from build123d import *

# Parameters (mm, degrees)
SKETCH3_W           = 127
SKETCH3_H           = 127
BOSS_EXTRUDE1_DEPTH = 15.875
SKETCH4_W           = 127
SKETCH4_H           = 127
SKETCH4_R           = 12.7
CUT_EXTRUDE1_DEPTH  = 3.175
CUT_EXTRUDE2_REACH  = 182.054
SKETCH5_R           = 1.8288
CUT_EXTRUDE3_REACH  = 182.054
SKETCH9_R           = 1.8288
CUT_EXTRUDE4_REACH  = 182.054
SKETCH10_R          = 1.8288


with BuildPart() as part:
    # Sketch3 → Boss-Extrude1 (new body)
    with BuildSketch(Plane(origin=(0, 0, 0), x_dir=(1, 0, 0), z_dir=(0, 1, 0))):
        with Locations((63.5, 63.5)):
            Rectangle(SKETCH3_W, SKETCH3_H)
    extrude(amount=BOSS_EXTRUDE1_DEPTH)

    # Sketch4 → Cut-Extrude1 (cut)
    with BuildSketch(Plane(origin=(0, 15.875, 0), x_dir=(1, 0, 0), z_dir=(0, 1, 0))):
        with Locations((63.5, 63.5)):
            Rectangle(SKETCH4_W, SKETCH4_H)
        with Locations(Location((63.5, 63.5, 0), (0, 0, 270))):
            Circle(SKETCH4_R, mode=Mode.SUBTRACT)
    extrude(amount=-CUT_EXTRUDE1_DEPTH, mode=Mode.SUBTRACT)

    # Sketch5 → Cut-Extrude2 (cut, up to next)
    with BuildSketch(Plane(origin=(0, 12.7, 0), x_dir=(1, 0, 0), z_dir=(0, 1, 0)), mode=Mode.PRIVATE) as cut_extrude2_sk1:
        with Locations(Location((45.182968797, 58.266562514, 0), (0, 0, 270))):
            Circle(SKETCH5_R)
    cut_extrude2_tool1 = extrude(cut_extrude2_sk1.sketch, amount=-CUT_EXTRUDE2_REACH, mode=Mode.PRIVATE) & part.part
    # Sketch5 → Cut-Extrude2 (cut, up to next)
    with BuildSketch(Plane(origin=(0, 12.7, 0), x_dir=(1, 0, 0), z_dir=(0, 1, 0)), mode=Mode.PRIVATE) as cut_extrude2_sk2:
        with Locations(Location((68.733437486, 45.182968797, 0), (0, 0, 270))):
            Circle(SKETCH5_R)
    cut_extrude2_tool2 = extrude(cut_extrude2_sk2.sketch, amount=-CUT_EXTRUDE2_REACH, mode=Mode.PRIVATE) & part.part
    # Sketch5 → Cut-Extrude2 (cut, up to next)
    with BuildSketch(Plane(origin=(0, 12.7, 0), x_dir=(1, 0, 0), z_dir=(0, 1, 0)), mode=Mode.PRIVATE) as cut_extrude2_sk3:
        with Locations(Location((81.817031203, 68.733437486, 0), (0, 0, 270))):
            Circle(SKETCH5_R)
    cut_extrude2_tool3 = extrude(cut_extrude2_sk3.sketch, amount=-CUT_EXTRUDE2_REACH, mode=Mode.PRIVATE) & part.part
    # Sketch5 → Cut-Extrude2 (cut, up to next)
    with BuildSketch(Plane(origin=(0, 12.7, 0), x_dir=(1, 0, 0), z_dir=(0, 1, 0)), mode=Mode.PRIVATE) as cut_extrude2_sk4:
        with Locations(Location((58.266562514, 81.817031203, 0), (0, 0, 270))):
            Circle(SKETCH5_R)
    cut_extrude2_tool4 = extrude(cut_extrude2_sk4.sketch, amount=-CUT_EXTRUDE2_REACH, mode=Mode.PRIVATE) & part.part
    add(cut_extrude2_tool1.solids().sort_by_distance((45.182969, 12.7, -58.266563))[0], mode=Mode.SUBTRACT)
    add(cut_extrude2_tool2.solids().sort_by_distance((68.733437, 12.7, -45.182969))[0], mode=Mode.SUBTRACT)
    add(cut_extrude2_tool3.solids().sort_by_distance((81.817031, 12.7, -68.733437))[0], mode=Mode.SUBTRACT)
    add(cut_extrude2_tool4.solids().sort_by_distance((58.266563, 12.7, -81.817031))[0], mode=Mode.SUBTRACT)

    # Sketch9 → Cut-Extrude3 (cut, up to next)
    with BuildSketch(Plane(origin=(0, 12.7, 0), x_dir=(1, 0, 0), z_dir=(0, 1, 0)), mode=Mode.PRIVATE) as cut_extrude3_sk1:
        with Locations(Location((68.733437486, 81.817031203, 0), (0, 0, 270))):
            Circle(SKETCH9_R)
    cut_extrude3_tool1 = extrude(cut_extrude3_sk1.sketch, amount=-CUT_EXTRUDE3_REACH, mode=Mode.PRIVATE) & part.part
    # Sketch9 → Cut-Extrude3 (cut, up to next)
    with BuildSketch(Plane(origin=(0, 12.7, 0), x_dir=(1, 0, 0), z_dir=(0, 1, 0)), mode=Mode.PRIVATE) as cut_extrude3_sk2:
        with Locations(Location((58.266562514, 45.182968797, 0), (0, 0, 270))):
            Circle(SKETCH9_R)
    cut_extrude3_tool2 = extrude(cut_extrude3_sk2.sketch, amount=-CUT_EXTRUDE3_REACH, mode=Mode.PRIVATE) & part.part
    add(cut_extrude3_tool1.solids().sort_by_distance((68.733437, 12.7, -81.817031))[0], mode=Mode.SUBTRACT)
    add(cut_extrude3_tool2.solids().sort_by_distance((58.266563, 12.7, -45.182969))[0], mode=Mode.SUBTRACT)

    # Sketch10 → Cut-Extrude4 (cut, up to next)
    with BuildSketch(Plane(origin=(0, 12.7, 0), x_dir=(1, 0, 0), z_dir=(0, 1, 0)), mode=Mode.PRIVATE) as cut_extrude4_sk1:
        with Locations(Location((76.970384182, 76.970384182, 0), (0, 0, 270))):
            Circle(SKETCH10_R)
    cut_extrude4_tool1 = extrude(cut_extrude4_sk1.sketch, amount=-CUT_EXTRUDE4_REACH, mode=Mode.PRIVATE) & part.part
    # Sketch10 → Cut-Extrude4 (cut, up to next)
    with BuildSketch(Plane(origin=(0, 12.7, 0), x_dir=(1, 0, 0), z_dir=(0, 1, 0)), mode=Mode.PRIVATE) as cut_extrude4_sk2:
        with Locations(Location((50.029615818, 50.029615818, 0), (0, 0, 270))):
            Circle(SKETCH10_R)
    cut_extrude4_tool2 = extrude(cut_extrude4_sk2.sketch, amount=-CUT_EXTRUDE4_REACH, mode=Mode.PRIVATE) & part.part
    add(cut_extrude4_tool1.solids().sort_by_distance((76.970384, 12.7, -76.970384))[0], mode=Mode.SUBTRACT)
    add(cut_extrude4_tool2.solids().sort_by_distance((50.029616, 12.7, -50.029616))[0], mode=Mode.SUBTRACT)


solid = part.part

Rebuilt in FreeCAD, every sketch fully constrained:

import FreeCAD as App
import Part
import Sketcher
from FreeCAD import Vector
Q = App.Units.Quantity


def add_polygon(sketch, points):
    """Adds a closed chain of lines whose ends are joined by coincident constraints."""
    first, n = sketch.GeometryCount, len(points)
    for a, b in zip(points, points[1:] + points[:1]):
        sketch.addGeometry(Part.LineSegment(App.Vector(*a, 0), App.Vector(*b, 0)), False)
    for i in range(n):
        sketch.addConstraint(Sketcher.Constraint("Coincident", first + i, 2, first + (i + 1) % n, 1))

doc = App.newDocument("Part")
body = doc.addObject("PartDesign::Body", "Body")

# Sketch on XZ plane
sketch1 = doc.addObject("Sketcher::SketchObject", "Sketch")
body.addObject(sketch1)
sketch1.AttachmentSupport = (doc.XZ_Plane, [""])
sketch1.MapMode = "FlatFace"
add_polygon(sketch1, [(0, -127), (0, 0), (127, 0), (127, -127)])  # lines 0-3
sketch1.addConstraint(Sketcher.Constraint("Vertical", 0))
sketch1.addConstraint(Sketcher.Constraint("Horizontal", 1))
sketch1.addConstraint(Sketcher.Constraint("Vertical", 2))
sketch1.addConstraint(Sketcher.Constraint("Horizontal", 3))
sketch1.addConstraint(Sketcher.Constraint("Coincident", 0, 2, -1, 1))
sketch1.addConstraint(Sketcher.Constraint("Equal", 3, 0))
sketch1.addConstraint(Sketcher.Constraint("DistanceX", 1, 1, 1, 2, Q("5 in")))
pad1 = doc.addObject("PartDesign::Pad", "Pad")
body.addObject(pad1)
pad1.Profile = sketch1
pad1.Length = Q("0.625 in")
pad1.Reversed = True

# Sketch on XZ plane
sketch2 = doc.addObject("Sketcher::SketchObject", "Sketch001")
body.addObject(sketch2)
sketch2.AttachmentSupport = (doc.XZ_Plane, [""])
sketch2.MapMode = "FlatFace"
sketch2.AttachmentOffset = App.Placement(Vector(0, 0, -0.625 * 25.4), App.Rotation())
add_polygon(sketch2, [(0, -127), (0, 0), (127, 0), (127, -127)])  # lines 0-3
sketch2.addGeometry(Part.Circle(Vector(64, -64, 0), Vector(0, 0, 1), 13), False)  # 4
sketch2.addConstraint(Sketcher.Constraint("Vertical", 0))
sketch2.addConstraint(Sketcher.Constraint("Horizontal", 1))
sketch2.addConstraint(Sketcher.Constraint("Vertical", 2))
sketch2.addConstraint(Sketcher.Constraint("Horizontal", 3))
sketch2.addConstraint(Sketcher.Constraint("Coincident", 0, 2, -1, 1))
sketch2.addConstraint(Sketcher.Constraint("Equal", 3, 0))
sketch2.addConstraint(Sketcher.Constraint("Diameter", 4, Q("1 in")))
sketch2.addConstraint(Sketcher.Constraint("DistanceX", 1, 1, 1, 2, Q("5 in")))
sketch2.addConstraint(Sketcher.Constraint("DistanceX", -1, 1, 4, 3, Q("2.5 in")))
sketch2.addConstraint(Sketcher.Constraint("DistanceY", 4, 3, -1, 1, Q("2.5 in")))
pocket1 = doc.addObject("PartDesign::Pocket", "Pocket")
body.addObject(pocket1)
pocket1.Profile = sketch2
pocket1.Length = Q("0.125 in")
pocket1.Reversed = True

# Sketch on XZ plane
sketch3 = doc.addObject("Sketcher::SketchObject", "Sketch002")
body.addObject(sketch3)
sketch3.AttachmentSupport = (doc.XZ_Plane, [""])
sketch3.MapMode = "FlatFace"
sketch3.AttachmentOffset = App.Placement(Vector(0, 0, -0.5 * 25.4), App.Rotation())
sketch3.addGeometry(Part.Circle(Vector(45.2, -58.3, 0), Vector(0, 0, 1), 1.8), False)
sketch3.addConstraint(Sketcher.Constraint("Diameter", 0, Q("0.144 in")))
sketch3.addConstraint(Sketcher.Constraint("DistanceX", -1, 1, 0, 3, Q("45.182969 mm")))
sketch3.addConstraint(Sketcher.Constraint("DistanceY", 0, 3, -1, 1, Q("58.266563 mm")))
pocket2 = doc.addObject("PartDesign::Pocket", "Pocket001")
body.addObject(pocket2)
pocket2.Profile = sketch3
pocket2.Type = "UpToFirst"
pocket2.Reversed = True

# Sketch on XZ plane
sketch4 = doc.addObject("Sketcher::SketchObject", "Sketch003")
body.addObject(sketch4)
sketch4.AttachmentSupport = (doc.XZ_Plane, [""])
sketch4.MapMode = "FlatFace"
sketch4.AttachmentOffset = App.Placement(Vector(0, 0, -0.5 * 25.4), App.Rotation())
sketch4.addGeometry(Part.Circle(Vector(68.7, -45.2, 0), Vector(0, 0, 1), 1.8), False)
sketch4.addConstraint(Sketcher.Constraint("Diameter", 0, Q("0.144 in")))
sketch4.addConstraint(Sketcher.Constraint("DistanceY", 0, 3, -1, 1, Q("45.182969 mm")))
sketch4.addConstraint(Sketcher.Constraint("DistanceX", -1, 1, 0, 3, Q("68.733437 mm")))
pocket3 = doc.addObject("PartDesign::Pocket", "Pocket002")
body.addObject(pocket3)
pocket3.Profile = sketch4
pocket3.Type = "UpToFirst"
pocket3.Reversed = True

# Sketch on XZ plane
sketch5 = doc.addObject("Sketcher::SketchObject", "Sketch004")
body.addObject(sketch5)
sketch5.AttachmentSupport = (doc.XZ_Plane, [""])
sketch5.MapMode = "FlatFace"
sketch5.AttachmentOffset = App.Placement(Vector(0, 0, -0.5 * 25.4), App.Rotation())
sketch5.addGeometry(Part.Circle(Vector(81.8, -68.7, 0), Vector(0, 0, 1), 1.8), False)
sketch5.addConstraint(Sketcher.Constraint("Diameter", 0, Q("0.144 in")))
sketch5.addConstraint(Sketcher.Constraint("DistanceX", -1, 1, 0, 3, Q("81.817031 mm")))
sketch5.addConstraint(Sketcher.Constraint("DistanceY", 0, 3, -1, 1, Q("68.733437 mm")))
pocket4 = doc.addObject("PartDesign::Pocket", "Pocket003")
body.addObject(pocket4)
pocket4.Profile = sketch5
pocket4.Type = "UpToFirst"
pocket4.Reversed = True

# Sketch on XZ plane
sketch6 = doc.addObject("Sketcher::SketchObject", "Sketch005")
body.addObject(sketch6)
sketch6.AttachmentSupport = (doc.XZ_Plane, [""])
sketch6.MapMode = "FlatFace"
sketch6.AttachmentOffset = App.Placement(Vector(0, 0, -0.5 * 25.4), App.Rotation())
sketch6.addGeometry(Part.Circle(Vector(58.3, -81.8, 0), Vector(0, 0, 1), 1.8), False)
sketch6.addConstraint(Sketcher.Constraint("Diameter", 0, Q("0.144 in")))
sketch6.addConstraint(Sketcher.Constraint("DistanceY", 0, 3, -1, 1, Q("81.817031 mm")))
sketch6.addConstraint(Sketcher.Constraint("DistanceX", -1, 1, 0, 3, Q("58.266563 mm")))
pocket5 = doc.addObject("PartDesign::Pocket", "Pocket004")
body.addObject(pocket5)
pocket5.Profile = sketch6
pocket5.Type = "UpToFirst"
pocket5.Reversed = True

# Sketch on XZ plane
sketch7 = doc.addObject("Sketcher::SketchObject", "Sketch006")
body.addObject(sketch7)
sketch7.AttachmentSupport = (doc.XZ_Plane, [""])
sketch7.MapMode = "FlatFace"
sketch7.AttachmentOffset = App.Placement(Vector(0, 0, -0.5 * 25.4), App.Rotation())
sketch7.addGeometry(Part.Circle(Vector(68.7, -81.8, 0), Vector(0, 0, 1), 1.8), False)
sketch7.addConstraint(Sketcher.Constraint("Diameter", 0, Q("0.144 in")))
sketch7.addConstraint(Sketcher.Constraint("DistanceY", 0, 3, -1, 1, Q("81.817031 mm")))
sketch7.addConstraint(Sketcher.Constraint("DistanceX", -1, 1, 0, 3, Q("68.733437 mm")))
pocket6 = doc.addObject("PartDesign::Pocket", "Pocket005")
body.addObject(pocket6)
pocket6.Profile = sketch7
pocket6.Type = "UpToFirst"
pocket6.Reversed = True

# Sketch on XZ plane
sketch8 = doc.addObject("Sketcher::SketchObject", "Sketch007")
body.addObject(sketch8)
sketch8.AttachmentSupport = (doc.XZ_Plane, [""])
sketch8.MapMode = "FlatFace"
sketch8.AttachmentOffset = App.Placement(Vector(0, 0, -0.5 * 25.4), App.Rotation())
sketch8.addGeometry(Part.Circle(Vector(58.3, -45.2, 0), Vector(0, 0, 1), 1.8), False)
sketch8.addConstraint(Sketcher.Constraint("Diameter", 0, Q("0.144 in")))
sketch8.addConstraint(Sketcher.Constraint("DistanceY", 0, 3, -1, 1, Q("45.182969 mm")))
sketch8.addConstraint(Sketcher.Constraint("DistanceX", -1, 1, 0, 3, Q("58.266563 mm")))
pocket7 = doc.addObject("PartDesign::Pocket", "Pocket006")
body.addObject(pocket7)
pocket7.Profile = sketch8
pocket7.Type = "UpToFirst"
pocket7.Reversed = True

# Sketch on XZ plane
sketch9 = doc.addObject("Sketcher::SketchObject", "Sketch008")
body.addObject(sketch9)
sketch9.AttachmentSupport = (doc.XZ_Plane, [""])
sketch9.MapMode = "FlatFace"
sketch9.AttachmentOffset = App.Placement(Vector(0, 0, -0.5 * 25.4), App.Rotation())
sketch9.addGeometry(Part.Circle(Vector(77, -77, 0), Vector(0, 0, 1), 1.8), False)
sketch9.addConstraint(Sketcher.Constraint("Diameter", 0, Q("0.144 in")))
sketch9.addConstraint(Sketcher.Constraint("DistanceX", -1, 1, 0, 3, Q("76.970384 mm")))
sketch9.addConstraint(Sketcher.Constraint("DistanceY", 0, 3, -1, 1, Q("76.970384 mm")))
pocket8 = doc.addObject("PartDesign::Pocket", "Pocket007")
body.addObject(pocket8)
pocket8.Profile = sketch9
pocket8.Type = "UpToFirst"
pocket8.Reversed = True

# Sketch on XZ plane
sketch10 = doc.addObject("Sketcher::SketchObject", "Sketch009")
body.addObject(sketch10)
sketch10.AttachmentSupport = (doc.XZ_Plane, [""])
sketch10.MapMode = "FlatFace"
sketch10.AttachmentOffset = App.Placement(Vector(0, 0, -0.5 * 25.4), App.Rotation())
sketch10.addGeometry(Part.Circle(Vector(50, -50, 0), Vector(0, 0, 1), 1.8), False)
sketch10.addConstraint(Sketcher.Constraint("Diameter", 0, Q("0.144 in")))
sketch10.addConstraint(Sketcher.Constraint("DistanceX", -1, 1, 0, 3, Q("50.029616 mm")))
sketch10.addConstraint(Sketcher.Constraint("DistanceY", 0, 3, -1, 1, Q("50.029616 mm")))
pocket9 = doc.addObject("PartDesign::Pocket", "Pocket008")
body.addObject(pocket9)
pocket9.Profile = sketch10
pocket9.Type = "UpToFirst"
pocket9.Reversed = True

doc.recompute()
